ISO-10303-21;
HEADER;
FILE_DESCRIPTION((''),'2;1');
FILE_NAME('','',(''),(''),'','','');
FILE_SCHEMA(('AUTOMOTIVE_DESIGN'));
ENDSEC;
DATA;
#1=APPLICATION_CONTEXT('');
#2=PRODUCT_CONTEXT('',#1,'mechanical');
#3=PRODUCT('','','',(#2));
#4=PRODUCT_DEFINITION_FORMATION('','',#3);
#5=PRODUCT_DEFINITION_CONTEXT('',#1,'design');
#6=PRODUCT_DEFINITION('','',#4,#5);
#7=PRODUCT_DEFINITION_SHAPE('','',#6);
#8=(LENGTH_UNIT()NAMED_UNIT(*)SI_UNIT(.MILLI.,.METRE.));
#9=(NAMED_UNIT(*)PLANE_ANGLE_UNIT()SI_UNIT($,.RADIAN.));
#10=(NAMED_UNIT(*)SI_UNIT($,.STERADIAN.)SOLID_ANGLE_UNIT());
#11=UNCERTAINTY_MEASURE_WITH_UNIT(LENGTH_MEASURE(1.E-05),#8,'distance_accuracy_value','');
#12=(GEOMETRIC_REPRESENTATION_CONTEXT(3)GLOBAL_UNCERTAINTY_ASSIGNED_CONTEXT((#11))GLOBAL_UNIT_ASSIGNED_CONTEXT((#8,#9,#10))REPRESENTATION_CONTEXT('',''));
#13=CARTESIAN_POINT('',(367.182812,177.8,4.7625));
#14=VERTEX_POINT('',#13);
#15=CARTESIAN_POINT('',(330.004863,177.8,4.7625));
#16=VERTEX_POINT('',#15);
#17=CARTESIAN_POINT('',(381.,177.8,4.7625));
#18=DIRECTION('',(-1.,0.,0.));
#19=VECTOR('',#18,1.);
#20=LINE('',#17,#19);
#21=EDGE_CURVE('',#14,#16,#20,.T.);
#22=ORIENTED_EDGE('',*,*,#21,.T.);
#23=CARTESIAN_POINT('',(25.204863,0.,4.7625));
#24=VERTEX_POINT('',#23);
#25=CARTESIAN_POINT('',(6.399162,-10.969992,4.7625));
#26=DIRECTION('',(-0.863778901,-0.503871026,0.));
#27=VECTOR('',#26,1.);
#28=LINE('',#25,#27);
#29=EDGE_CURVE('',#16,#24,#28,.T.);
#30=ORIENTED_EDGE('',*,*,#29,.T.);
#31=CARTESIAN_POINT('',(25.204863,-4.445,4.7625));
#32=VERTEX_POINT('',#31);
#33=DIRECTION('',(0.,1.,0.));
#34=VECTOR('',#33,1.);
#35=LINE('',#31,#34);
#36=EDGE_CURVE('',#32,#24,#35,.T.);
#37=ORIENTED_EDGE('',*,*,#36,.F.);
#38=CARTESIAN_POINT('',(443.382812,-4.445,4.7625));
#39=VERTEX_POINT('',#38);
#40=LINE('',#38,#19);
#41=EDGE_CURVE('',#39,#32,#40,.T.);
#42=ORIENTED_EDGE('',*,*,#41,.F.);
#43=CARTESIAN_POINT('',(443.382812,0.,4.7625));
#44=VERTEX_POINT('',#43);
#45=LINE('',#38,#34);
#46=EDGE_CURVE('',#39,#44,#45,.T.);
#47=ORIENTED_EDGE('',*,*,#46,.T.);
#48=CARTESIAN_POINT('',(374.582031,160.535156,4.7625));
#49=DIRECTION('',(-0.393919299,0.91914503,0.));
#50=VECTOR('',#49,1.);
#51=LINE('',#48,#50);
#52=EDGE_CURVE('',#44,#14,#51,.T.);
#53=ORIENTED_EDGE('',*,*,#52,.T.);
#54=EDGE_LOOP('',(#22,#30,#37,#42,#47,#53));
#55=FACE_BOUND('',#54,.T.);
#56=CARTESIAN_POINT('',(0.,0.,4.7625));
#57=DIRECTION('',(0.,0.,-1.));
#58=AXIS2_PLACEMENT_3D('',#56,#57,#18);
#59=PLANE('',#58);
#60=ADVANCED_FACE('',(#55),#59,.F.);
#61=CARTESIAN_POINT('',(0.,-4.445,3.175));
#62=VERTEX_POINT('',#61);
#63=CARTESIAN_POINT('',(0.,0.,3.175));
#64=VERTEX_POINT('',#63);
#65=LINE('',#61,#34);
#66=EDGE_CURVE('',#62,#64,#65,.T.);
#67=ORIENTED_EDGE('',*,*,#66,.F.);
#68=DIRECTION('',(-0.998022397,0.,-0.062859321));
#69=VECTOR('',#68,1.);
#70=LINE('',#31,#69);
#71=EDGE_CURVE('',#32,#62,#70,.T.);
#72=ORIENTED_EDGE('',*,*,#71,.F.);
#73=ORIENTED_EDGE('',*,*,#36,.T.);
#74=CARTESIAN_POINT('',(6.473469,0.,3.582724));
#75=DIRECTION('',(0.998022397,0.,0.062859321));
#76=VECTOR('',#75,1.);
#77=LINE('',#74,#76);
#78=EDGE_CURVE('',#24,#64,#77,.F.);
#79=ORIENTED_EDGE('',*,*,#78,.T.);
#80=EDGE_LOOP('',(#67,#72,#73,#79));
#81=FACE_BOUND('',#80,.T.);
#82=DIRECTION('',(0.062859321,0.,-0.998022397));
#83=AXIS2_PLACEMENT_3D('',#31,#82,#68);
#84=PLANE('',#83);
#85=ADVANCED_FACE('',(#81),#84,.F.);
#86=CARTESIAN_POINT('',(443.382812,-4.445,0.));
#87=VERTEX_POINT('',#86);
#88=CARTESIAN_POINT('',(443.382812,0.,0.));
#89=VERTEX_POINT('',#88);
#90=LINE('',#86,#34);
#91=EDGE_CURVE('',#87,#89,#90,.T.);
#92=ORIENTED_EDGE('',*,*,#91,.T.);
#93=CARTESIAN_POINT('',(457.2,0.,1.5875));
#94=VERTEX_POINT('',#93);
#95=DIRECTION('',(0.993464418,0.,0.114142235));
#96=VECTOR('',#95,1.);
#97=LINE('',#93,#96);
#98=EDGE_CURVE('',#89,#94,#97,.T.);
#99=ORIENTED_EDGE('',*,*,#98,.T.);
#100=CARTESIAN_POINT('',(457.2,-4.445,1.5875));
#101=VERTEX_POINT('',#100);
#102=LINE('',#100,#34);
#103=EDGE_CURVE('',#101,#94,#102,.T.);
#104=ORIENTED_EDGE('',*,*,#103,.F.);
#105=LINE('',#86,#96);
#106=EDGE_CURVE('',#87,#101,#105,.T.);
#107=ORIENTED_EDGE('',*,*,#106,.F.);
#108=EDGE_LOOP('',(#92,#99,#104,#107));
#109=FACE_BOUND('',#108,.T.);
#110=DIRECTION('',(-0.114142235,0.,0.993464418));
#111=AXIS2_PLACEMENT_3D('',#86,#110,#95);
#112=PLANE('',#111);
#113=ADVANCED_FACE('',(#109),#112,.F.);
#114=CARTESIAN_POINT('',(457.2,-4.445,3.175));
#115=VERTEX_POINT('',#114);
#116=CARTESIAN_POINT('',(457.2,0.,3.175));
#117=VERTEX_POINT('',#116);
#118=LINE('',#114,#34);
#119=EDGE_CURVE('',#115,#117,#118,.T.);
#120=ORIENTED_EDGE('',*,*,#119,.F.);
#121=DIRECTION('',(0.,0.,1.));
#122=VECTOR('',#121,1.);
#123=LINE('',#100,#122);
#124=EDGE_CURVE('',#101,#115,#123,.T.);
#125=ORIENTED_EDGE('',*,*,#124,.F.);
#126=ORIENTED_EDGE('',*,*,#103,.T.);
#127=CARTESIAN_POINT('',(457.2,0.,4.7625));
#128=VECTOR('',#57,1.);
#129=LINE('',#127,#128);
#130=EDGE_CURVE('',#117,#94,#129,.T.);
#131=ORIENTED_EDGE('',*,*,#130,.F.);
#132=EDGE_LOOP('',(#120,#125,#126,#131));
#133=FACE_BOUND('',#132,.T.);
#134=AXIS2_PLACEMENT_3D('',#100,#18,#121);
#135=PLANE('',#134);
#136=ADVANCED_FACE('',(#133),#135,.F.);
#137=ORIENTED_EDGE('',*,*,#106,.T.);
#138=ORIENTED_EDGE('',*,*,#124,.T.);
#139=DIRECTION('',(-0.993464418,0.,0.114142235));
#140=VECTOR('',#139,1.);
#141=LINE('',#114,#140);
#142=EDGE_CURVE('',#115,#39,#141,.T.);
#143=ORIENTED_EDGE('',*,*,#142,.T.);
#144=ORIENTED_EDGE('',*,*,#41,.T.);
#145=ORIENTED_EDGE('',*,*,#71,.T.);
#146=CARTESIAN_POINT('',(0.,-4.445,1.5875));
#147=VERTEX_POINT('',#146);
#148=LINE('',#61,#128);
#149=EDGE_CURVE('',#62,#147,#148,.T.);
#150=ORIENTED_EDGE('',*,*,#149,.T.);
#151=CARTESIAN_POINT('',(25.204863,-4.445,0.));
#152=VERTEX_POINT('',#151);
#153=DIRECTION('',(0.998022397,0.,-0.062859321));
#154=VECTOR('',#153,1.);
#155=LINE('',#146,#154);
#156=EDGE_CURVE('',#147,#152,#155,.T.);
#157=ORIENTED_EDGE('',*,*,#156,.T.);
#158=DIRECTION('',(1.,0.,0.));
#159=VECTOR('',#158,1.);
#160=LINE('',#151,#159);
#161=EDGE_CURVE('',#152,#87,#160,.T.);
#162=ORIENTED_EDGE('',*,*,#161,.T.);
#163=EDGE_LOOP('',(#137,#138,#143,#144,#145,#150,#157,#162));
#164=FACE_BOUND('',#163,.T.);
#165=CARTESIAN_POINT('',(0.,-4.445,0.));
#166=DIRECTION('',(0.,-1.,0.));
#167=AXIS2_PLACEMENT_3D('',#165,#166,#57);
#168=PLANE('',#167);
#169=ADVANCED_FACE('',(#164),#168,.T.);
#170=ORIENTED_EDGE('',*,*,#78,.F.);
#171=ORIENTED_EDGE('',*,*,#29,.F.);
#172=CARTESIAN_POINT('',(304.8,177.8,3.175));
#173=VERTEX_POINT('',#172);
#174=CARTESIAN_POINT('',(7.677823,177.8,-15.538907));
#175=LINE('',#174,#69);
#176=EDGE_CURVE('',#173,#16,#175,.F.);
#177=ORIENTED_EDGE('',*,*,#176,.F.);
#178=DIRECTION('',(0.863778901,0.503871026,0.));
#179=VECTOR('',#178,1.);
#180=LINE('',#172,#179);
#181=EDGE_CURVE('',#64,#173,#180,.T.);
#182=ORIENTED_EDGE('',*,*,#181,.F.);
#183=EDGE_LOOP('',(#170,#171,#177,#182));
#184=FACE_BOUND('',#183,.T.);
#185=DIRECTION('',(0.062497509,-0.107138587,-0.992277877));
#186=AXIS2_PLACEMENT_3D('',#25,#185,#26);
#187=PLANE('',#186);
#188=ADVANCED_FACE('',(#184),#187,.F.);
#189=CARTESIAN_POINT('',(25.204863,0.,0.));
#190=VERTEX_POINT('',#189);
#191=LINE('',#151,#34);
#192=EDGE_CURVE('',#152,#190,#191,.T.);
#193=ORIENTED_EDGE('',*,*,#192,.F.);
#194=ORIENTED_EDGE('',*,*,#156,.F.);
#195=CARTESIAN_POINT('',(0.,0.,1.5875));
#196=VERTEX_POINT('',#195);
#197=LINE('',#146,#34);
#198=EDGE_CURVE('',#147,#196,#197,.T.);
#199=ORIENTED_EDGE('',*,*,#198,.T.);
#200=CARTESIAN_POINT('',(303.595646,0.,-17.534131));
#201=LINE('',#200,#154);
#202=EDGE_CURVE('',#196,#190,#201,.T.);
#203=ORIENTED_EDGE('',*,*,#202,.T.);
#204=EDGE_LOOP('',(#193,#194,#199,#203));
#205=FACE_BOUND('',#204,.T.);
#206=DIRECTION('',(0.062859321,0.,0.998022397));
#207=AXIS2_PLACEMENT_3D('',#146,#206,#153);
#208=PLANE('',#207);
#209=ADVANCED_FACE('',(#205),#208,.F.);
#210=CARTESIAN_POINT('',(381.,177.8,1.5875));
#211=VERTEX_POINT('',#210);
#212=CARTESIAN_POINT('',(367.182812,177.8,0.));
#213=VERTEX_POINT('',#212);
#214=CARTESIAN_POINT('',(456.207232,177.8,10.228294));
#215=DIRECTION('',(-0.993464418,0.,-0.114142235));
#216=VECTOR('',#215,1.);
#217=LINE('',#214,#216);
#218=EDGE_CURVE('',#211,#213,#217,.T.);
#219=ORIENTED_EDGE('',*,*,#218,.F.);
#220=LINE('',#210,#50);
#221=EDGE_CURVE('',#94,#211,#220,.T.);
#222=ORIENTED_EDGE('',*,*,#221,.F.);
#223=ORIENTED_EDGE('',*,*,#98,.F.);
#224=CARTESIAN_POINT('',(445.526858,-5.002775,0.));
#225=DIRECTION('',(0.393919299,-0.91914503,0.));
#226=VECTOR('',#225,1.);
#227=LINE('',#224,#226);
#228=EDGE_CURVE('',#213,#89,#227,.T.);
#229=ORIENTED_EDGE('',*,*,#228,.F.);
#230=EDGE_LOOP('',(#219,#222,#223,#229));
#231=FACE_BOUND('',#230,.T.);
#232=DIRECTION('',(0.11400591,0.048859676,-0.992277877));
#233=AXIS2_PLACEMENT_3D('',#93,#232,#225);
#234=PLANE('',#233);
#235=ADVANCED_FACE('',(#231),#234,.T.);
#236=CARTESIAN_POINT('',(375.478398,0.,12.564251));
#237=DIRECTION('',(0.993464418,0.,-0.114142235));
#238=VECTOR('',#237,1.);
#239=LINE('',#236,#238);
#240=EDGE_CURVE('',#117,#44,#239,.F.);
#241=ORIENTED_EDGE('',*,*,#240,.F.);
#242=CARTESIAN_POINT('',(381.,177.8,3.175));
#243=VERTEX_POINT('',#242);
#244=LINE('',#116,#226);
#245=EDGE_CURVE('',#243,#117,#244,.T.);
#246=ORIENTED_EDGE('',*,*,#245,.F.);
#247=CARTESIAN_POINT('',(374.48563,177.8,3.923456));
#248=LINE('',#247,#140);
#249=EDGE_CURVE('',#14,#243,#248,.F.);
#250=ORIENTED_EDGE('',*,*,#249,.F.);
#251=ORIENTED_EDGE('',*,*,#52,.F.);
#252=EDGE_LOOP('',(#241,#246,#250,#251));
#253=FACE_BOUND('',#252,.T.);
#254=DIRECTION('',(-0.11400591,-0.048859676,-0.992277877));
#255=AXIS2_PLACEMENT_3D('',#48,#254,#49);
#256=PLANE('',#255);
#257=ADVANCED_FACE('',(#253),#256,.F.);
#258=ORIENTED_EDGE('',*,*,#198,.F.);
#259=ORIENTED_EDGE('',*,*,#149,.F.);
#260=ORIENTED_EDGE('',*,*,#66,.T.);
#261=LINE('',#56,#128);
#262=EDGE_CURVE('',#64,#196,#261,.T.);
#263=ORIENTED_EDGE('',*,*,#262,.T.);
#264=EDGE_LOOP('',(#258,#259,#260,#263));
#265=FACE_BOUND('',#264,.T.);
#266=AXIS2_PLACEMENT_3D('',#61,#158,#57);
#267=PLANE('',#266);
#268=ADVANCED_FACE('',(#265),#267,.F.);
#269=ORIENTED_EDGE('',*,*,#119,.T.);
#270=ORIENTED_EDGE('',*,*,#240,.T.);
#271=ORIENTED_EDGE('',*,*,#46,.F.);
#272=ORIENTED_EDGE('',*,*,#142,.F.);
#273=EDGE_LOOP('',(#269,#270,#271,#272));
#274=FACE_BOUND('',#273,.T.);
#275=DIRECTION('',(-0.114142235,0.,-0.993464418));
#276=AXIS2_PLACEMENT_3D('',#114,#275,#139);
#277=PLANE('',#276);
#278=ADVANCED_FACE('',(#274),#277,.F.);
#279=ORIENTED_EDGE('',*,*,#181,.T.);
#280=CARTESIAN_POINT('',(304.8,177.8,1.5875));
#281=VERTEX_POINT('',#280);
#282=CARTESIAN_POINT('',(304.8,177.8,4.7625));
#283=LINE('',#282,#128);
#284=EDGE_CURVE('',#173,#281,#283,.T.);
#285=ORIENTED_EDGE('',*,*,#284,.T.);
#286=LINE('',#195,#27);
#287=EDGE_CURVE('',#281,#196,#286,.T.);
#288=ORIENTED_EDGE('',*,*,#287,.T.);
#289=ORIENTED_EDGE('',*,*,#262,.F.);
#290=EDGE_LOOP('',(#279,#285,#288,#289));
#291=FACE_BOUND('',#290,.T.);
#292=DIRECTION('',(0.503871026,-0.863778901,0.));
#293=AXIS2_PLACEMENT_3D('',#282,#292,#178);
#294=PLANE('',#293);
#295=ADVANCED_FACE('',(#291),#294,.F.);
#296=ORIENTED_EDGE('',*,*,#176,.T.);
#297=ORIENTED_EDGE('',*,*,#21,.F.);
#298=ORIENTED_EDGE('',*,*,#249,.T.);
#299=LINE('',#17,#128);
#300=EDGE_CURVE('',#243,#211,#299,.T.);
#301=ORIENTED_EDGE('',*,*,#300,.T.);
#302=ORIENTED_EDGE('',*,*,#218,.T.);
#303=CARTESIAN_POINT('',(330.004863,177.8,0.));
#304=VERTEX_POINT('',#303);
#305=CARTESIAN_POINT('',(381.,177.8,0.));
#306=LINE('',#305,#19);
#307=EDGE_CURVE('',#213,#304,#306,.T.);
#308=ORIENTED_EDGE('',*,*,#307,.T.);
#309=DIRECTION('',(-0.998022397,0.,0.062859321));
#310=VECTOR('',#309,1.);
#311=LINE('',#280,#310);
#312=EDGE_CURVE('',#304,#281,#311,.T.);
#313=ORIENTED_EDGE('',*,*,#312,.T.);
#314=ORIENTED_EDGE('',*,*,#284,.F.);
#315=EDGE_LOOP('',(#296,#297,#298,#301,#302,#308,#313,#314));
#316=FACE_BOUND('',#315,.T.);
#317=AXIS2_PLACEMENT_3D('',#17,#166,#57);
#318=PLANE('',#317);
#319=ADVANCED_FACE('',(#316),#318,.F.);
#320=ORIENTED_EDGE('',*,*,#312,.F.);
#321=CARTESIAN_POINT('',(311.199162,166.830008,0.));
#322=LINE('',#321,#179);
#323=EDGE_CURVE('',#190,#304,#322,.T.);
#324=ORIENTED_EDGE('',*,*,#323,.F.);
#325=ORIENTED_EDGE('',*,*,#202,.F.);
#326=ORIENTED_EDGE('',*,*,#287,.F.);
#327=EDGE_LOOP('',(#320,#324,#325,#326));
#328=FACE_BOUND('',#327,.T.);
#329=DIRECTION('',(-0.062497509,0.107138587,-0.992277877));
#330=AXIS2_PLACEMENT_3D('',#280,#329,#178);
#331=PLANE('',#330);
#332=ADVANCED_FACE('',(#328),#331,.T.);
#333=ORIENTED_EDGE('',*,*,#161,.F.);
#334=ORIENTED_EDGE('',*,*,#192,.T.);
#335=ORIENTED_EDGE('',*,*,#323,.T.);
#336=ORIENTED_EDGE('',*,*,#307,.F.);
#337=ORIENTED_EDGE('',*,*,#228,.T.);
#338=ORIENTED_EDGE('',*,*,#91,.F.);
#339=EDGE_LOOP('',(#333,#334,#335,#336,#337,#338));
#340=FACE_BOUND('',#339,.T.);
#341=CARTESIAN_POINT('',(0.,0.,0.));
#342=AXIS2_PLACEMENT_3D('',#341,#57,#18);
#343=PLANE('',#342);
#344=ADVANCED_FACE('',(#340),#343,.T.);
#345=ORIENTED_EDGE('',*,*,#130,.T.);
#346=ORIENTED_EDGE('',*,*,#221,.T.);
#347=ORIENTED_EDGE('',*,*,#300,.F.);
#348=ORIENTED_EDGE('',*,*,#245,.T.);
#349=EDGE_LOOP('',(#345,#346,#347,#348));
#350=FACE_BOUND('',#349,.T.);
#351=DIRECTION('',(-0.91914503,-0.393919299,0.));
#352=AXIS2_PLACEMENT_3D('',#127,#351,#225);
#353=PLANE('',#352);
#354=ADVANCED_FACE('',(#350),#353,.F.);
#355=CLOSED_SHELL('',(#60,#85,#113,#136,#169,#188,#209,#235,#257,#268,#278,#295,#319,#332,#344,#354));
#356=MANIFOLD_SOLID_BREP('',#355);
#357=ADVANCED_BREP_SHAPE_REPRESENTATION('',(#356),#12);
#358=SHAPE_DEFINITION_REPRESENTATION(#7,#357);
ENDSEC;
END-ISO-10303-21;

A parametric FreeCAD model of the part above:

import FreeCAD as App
import Part
import Sketcher
from FreeCAD import Vector
Q = App.Units.Quantity


def edges_at(feature, points):
    """Names of the edges that pass closest to the given points."""
    edges = feature.Shape.Edges
    near = lambda p: min(range(len(edges)), key=lambda i: edges[i].distToShape(Part.Vertex(*p))[0])
    return sorted({f"Edge{near(p) + 1}" for p in points})


def add_polygon(sketch, points):
    """Adds a closed chain of lines whose ends are joined by coincident constraints."""
    first, n = sketch.GeometryCount, len(points)
    for a, b in zip(points, points[1:] + points[:1]):
        sketch.addGeometry(Part.LineSegment(App.Vector(*a, 0), App.Vector(*b, 0)), False)
    for i in range(n):
        sketch.addConstraint(Sketcher.Constraint("Coincident", first + i, 2, first + (i + 1) % n, 1))

doc = App.newDocument("Part")
body = doc.addObject("PartDesign::Body", "Body")

sketch1 = body.newObject("Sketcher::SketchObject", "Sketch")
sketch1.AttachmentSupport = (doc.getObject("XY_Plane"), [""])
sketch1.MapMode = "FlatFace"
add_polygon(sketch1, [(0, 0), (457, 0), (381, 178), (305, 178)])
sketch1.addConstraint([
    Sketcher.Constraint("Horizontal", 0),
    Sketcher.Constraint("Horizontal", 2),
    Sketcher.Constraint("Coincident", 3, 2, -1, 1),
    Sketcher.Constraint("DistanceX", 0, 1, 0, 2, Q("18 in")),
    Sketcher.Constraint("DistanceX", 2, 2, 2, 1, Q("3 in")),
    Sketcher.Constraint("DistanceX", -1, 1, 1, 2, Q("15 in")),
    Sketcher.Constraint("DistanceY", -1, 1, 1, 2, Q("7 in")),
])
pad1 = body.newObject("PartDesign::Pad", "Pad")
pad1.Profile = sketch1
pad1.Length = Q("0.1875 in")
doc.recompute()

chamfer = body.newObject("PartDesign::Chamfer", "Chamfer")
chamfer.Base = (pad1, edges_at(pad1, [(152.4, 88.9, 4.763), (152.4, 88.9, 0)]))
chamfer.ChamferType = "Two distances"
chamfer.Size = Q("0.0625 in")
chamfer.Size2 = Q("0.5 in")
doc.recompute()

chamfer2 = body.newObject("PartDesign::Chamfer", "Chamfer001")
chamfer2.Base = (chamfer, edges_at(chamfer, [(419.1, 88.9, 4.763), (419.1, 88.9, 0)]))
chamfer2.ChamferType = "Two distances"
chamfer2.Size = Q("0.0625 in")
chamfer2.Size2 = Q("0.5 in")
chamfer2.FlipDirection = True

sketch2 = body.newObject("Sketcher::SketchObject", "Sketch001")
sketch2.AttachmentSupport = (doc.getObject("XZ_Plane"), [""])
sketch2.MapMode = "FlatFace"
add_polygon(sketch2, [(25.2, 0), (443.4, 0), (457.2, 1.6), (457.2, 3.2), (443.4, 4.8), (25.2, 4.8), (0, 3.2), (0, 1.6)])
sketch2.addConstraint([
    Sketcher.Constraint("Horizontal", 0),
    Sketcher.Constraint("Vertical", 2),
    Sketcher.Constraint("Horizontal", 4),
    Sketcher.Constraint("Vertical", 6),
    Sketcher.Constraint("PointOnObject", 0, 2, -1),
    Sketcher.Constraint("PointOnObject", 5, 2, -2),
    Sketcher.Constraint("Horizontal", 2, 2, 5, 2),
    Sketcher.Constraint("Horizontal", 1, 2, 6, 2),
    Sketcher.Constraint("Vertical", 0, 2, 3, 2),
    Sketcher.Constraint("Vertical", 4, 2, 7, 2),
    Sketcher.Constraint("Equal", 1, 3),
    Sketcher.Constraint("DistanceX", -1, 1, 1, 2, Q("18 in")),
    Sketcher.Constraint("DistanceY", 2, 1, 2, 2, Q("0.0625 in")),
    Sketcher.Constraint("DistanceY", -1, 1, 1, 2, Q("0.0625 in")),
    Sketcher.Constraint("DistanceX", 0, 1, 0, 2, 418.177949),
    Sketcher.Constraint("DistanceX", -1, 1, 0, 2, 443.382812),
])
pad2 = body.newObject("PartDesign::Pad", "Pad001")
pad2.Profile = sketch2
pad2.Length = Q("0.175 in")

doc.recompute()
